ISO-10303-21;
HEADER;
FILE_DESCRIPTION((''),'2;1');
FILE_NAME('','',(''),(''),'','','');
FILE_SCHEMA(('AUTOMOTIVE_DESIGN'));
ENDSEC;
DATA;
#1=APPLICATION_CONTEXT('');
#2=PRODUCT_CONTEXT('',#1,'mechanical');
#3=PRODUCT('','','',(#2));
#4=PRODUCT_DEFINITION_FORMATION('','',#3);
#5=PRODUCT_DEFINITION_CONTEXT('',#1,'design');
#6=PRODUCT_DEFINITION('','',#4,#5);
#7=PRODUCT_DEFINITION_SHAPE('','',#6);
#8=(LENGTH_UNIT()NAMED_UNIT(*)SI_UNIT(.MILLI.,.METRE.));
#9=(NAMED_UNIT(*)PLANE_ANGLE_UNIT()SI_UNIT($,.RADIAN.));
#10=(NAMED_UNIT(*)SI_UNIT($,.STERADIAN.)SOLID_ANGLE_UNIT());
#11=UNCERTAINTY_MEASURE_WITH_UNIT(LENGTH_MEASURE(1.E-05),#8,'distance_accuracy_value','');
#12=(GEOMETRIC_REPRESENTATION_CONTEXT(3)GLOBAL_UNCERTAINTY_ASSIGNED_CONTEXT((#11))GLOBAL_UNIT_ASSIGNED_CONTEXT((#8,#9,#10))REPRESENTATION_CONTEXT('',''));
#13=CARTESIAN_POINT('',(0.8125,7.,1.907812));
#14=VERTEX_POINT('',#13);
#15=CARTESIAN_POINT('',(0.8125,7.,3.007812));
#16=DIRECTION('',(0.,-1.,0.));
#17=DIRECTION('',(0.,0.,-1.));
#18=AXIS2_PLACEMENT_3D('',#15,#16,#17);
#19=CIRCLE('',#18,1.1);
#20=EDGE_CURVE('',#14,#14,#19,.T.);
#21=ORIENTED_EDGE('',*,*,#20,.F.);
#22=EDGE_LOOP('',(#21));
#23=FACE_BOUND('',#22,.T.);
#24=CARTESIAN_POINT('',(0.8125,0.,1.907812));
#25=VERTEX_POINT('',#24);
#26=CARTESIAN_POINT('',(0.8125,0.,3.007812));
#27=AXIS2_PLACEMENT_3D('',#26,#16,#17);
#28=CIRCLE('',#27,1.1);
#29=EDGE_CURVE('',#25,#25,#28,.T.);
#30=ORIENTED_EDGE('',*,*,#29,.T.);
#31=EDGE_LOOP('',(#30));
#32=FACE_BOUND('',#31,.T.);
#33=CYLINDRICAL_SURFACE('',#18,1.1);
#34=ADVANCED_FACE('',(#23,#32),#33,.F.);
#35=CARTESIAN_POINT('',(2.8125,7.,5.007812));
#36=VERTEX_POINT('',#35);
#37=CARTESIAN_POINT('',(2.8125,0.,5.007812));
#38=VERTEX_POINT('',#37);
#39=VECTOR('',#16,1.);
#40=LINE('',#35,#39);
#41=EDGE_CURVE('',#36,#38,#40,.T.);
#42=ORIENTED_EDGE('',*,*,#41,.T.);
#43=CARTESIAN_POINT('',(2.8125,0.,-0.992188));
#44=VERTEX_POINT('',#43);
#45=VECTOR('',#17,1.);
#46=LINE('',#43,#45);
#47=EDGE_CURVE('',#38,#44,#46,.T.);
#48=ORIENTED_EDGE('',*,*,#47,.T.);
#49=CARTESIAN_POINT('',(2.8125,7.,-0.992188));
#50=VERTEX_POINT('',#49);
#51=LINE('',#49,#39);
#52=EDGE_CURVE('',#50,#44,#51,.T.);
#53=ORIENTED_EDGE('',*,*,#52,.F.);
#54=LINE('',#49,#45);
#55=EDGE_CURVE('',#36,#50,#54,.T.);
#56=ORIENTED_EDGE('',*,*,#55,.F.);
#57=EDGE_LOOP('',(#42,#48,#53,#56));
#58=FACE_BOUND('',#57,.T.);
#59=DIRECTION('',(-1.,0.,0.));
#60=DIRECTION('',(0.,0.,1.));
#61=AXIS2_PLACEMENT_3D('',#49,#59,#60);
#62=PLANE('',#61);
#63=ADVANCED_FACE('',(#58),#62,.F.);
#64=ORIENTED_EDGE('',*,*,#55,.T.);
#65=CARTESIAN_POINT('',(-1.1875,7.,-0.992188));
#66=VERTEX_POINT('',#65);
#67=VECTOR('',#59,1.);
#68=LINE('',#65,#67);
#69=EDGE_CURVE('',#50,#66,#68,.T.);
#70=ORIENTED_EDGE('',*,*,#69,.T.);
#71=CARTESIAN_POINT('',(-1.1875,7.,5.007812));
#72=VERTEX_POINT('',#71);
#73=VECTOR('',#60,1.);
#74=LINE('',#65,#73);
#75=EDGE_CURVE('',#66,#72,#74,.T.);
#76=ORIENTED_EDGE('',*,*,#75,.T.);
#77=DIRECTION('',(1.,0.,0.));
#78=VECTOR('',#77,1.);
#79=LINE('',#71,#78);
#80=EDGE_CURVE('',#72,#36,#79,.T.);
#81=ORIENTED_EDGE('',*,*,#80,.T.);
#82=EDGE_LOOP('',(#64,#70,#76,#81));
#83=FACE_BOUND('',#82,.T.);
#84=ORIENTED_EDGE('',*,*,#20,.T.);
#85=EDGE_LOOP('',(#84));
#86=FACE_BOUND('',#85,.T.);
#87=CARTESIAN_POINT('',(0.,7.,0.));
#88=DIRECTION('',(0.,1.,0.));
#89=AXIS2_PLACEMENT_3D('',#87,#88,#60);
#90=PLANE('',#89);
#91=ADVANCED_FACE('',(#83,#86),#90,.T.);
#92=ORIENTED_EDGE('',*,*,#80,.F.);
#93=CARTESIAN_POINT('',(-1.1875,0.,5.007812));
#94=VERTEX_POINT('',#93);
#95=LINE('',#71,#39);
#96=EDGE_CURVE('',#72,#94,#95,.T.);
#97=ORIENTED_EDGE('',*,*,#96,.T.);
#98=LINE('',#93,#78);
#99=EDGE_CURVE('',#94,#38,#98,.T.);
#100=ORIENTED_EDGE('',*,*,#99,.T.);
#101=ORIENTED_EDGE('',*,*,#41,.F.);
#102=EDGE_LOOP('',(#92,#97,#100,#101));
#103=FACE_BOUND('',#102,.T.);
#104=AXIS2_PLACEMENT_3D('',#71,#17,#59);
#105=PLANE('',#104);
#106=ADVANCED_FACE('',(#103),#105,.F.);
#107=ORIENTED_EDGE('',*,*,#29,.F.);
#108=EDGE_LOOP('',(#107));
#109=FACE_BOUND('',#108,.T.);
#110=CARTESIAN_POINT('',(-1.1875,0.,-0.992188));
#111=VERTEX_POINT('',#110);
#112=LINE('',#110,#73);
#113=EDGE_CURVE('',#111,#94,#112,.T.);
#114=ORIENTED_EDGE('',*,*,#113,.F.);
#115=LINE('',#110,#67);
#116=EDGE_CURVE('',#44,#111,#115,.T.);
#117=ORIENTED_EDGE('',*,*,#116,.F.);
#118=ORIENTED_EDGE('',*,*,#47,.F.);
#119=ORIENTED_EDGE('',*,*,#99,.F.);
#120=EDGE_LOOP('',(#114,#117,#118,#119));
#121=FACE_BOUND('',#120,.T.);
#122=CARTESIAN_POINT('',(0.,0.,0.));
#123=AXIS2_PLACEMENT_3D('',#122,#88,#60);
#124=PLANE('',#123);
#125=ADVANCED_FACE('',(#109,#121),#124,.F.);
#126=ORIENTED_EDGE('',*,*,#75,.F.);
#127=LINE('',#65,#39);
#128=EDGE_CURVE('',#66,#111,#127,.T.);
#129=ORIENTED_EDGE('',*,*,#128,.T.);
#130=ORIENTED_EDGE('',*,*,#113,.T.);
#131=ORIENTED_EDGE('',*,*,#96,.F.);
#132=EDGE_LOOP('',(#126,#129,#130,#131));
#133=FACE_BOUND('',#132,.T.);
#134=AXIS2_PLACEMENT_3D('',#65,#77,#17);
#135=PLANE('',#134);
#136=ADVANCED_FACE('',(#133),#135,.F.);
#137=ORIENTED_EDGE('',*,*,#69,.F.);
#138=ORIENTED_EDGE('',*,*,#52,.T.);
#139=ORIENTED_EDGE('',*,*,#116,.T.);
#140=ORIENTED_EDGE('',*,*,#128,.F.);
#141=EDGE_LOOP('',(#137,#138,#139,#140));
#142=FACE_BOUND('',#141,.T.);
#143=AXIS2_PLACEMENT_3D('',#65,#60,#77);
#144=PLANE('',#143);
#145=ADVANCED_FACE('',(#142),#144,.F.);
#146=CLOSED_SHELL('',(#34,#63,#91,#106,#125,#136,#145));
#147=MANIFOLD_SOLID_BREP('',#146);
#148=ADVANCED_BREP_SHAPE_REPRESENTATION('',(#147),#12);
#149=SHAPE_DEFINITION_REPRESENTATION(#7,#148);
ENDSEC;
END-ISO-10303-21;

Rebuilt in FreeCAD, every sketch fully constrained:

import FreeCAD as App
import Part
import Sketcher
from FreeCAD import Vector


def add_polygon(sketch, points):
    """Adds a closed chain of lines whose ends are joined by coincident constraints."""
    first, n = sketch.GeometryCount, len(points)
    for a, b in zip(points, points[1:] + points[:1]):
        sketch.addGeometry(Part.LineSegment(App.Vector(*a, 0), App.Vector(*b, 0)), False)
    for i in range(n):
        sketch.addConstraint(Sketcher.Constraint("Coincident", first + i, 2, first + (i + 1) % n, 1))

doc = App.newDocument("Part")
body = doc.addObject("PartDesign::Body", "Body")

# Sketch on XZ plane
sketch1 = body.newObject("Sketcher::SketchObject", "Sketch")
sketch1.AttachmentSupport = (doc.getObject("XZ_Plane"), [""])
sketch1.MapMode = "FlatFace"
add_polygon(sketch1, [(-1.1875, -0.992188), (-1.1875, 5.007812), (2.8125, 5.007812), (2.8125, -0.992188)])  # lines 0-3
sketch1.addConstraint([
    Sketcher.Constraint("Vertical", 0),
    Sketcher.Constraint("Horizontal", 1),
    Sketcher.Constraint("Vertical", 2),
    Sketcher.Constraint("Horizontal", 3),
    Sketcher.Constraint("DistanceX", 1, 1, 1, 2, 4.0),
    Sketcher.Constraint("DistanceY", 0, 1, 0, 2, 6.0),
    Sketcher.Constraint("DistanceX", 0, 2, -1, 1, 1.1875),
    Sketcher.Constraint("DistanceY", -1, 1, 0, 2, 5.007812),
])
pad1 = body.newObject("PartDesign::Pad", "Pad")
pad1.Profile = sketch1
pad1.Length = 7
pad1.Reversed = True

# Sketch on XZ plane
sketch2 = body.newObject("Sketcher::SketchObject", "Sketch001")
sketch2.AttachmentSupport = (doc.getObject("XZ_Plane"), [""])
sketch2.MapMode = "FlatFace"
sketch2.addGeometry(Part.Circle(Vector(0.8125, 3.007812, 0), Vector(0, 0, 1), 1.1), False)
sketch2.addConstraint([
    Sketcher.Constraint("Diameter", 0, 2.2),
    Sketcher.Constraint("DistanceX", -1, 1, 0, 3, 0.8125),
    Sketcher.Constraint("DistanceY", -1, 1, 0, 3, 3.007812),
])
pocket1 = body.newObject("PartDesign::Pocket", "Pocket")
pocket1.Profile = sketch2
pocket1.Type = "ThroughAll"

doc.recompute()
